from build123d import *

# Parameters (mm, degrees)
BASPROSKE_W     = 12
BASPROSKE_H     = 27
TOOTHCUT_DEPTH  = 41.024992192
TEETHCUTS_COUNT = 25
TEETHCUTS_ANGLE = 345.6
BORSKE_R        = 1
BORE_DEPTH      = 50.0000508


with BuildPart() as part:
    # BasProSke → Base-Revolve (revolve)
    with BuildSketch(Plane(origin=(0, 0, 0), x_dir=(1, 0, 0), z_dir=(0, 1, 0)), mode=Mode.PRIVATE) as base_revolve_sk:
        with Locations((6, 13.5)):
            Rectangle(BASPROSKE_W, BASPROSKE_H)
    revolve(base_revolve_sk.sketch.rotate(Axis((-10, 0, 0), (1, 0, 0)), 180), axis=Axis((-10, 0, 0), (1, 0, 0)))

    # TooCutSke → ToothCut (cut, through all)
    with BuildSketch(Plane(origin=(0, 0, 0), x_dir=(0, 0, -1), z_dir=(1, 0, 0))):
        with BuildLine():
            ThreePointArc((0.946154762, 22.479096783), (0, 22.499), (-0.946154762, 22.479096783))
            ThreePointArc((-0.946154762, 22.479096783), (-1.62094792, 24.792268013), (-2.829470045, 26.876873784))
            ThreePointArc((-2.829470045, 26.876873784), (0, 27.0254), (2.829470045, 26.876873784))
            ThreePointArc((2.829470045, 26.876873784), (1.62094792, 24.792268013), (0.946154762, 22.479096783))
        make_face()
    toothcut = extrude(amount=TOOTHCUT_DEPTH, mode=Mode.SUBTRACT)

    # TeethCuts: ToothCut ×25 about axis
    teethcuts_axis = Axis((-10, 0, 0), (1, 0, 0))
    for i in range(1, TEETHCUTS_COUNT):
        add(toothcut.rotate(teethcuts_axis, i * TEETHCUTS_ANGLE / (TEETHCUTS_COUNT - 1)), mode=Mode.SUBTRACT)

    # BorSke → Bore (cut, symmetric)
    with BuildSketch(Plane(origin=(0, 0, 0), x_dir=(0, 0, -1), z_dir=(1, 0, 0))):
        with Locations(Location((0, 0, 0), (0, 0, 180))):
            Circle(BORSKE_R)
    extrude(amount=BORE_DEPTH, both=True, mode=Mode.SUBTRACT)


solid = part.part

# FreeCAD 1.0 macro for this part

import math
import FreeCAD as App
import Part
import Sketcher

V = App.Vector
Q = App.Units.Quantity


def add_polygon(sketch, points):
    """Adds a closed chain of lines whose ends are joined by coincident constraints."""
    first, n = sketch.GeometryCount, len(points)
    for a, b in zip(points, points[1:] + points[:1]):
        sketch.addGeometry(Part.LineSegment(App.Vector(*a, 0), App.Vector(*b, 0)), False)
    for i in range(n):
        sketch.addConstraint(Sketcher.Constraint("Coincident", first + i, 2, first + (i + 1) % n, 1))

doc = App.newDocument("Part")
params = doc.addObject("Spreadsheet::Sheet", "Params")
for row, (alias, value) in enumerate([
    ("sketch1_width", "12 mm"),
    ("sketch1_height", "27 mm"),
    ("revolution_angle", "360 deg"),
    ("sketch2_radius", "10 mm"),
    ("sketch3_diameter", "2 mm"),
    ("pocket2_length", "100.000102 mm"),
], start=1):
    params.set(f"A{row}", alias)
    params.set(f"B{row}", "=" + value)
    params.setAlias(f"B{row}", alias)

body = doc.addObject("PartDesign::Body", "Body")

sketch1 = body.newObject("Sketcher::SketchObject", "Sketch")
sketch1.AttachmentSupport = (doc.getObject("XZ_Plane"), [""])
sketch1.MapMode = "FlatFace"
add_polygon(sketch1, [(0, -27), (0, 0), (12, 0), (12, -27)])
sketch1.addConstraint([
    Sketcher.Constraint("Vertical", 0),
    Sketcher.Constraint("Horizontal", 1),
    Sketcher.Constraint("Vertical", 2),
    Sketcher.Constraint("Horizontal", 3),
    Sketcher.Constraint("Coincident", 0, 2, -1, 1),
    Sketcher.Constraint("DistanceX", 1, 1, 1, 2, Q("12 mm")),
    Sketcher.Constraint("DistanceY", 0, 1, 0, 2, Q("27 mm")),
])
sketch1.setExpression("Constraints[9]", "Params.sketch1_width")
sketch1.setExpression("Constraints[10]", "Params.sketch1_height")
revolution = body.newObject("PartDesign::Revolution", "Revolution")
revolution.Profile = sketch1
revolution.ReferenceAxis = (sketch1, ["H_Axis"])
revolution.setExpression("Angle", "Params.revolution_angle")

sketch2 = body.newObject("Sketcher::SketchObject", "Sketch001")
sketch2.AttachmentSupport = (doc.getObject("YZ_Plane"), [""])
sketch2.MapMode = "FlatFace"
sketch2.addGeometry([
    Part.ArcOfCircle(Part.Circle(V(0, 0, 0), V(0, 0, 1), 22.5), math.radians(-2.41), math.radians(2.41)),
    Part.ArcOfCircle(Part.Circle(V(20.9, -10.8, 0), V(0, 0, 1), 10), math.radians(53), math.radians(81)),
    Part.ArcOfCircle(Part.Circle(V(0, 0, 0), V(0, 0, 1), 27), math.radians(-6.01), math.radians(6.01)),
    Part.ArcOfCircle(Part.Circle(V(20.9, 10.8, 0), V(0, 0, 1), 10), math.radians(-81), math.radians(-53)),
], False)
sketch2.addConstraint([
    Sketcher.Constraint("Coincident", 0, 1, 1, 2),
    Sketcher.Constraint("Coincident", 1, 1, 2, 1),
    Sketcher.Constraint("Coincident", 2, 2, 3, 2),
    Sketcher.Constraint("Coincident", 3, 1, 0, 2),
    Sketcher.Constraint("Coincident", 0, 3, -1, 1),
    Sketcher.Constraint("Coincident", 2, 3, -1, 1),
    Sketcher.Constraint("Equal", 1, 3),
    Sketcher.Constraint("Symmetric", 1, 3, 3, 3, -1),
    Sketcher.Constraint("Radius", 1, Q("10 mm")),
    Sketcher.Constraint("Radius", 0, Q("22.499 mm")),
    Sketcher.Constraint("Radius", 2, Q("27.0254 mm")),
    Sketcher.Constraint("DistanceX", -1, 1, 1, 3, Q("20.855629 mm")),
    Sketcher.Constraint("DistanceY", 1, 1, -1, 1, Q("2.82947 mm")),
])
sketch2.setExpression("Constraints[8]", "Params.sketch2_radius")
pocket1 = body.newObject("PartDesign::Pocket", "Pocket")
pocket1.Profile = sketch2
pocket1.Type = "ThroughAll"
pocket1.Reversed = True
doc.recompute()

polarpattern = body.newObject("PartDesign::PolarPattern", "PolarPattern")
polarpattern.Originals = [pocket1]
polarpattern.Axis = (doc.getObject("X_Axis"), [""])
polarpattern.Angle = 360
polarpattern.Occurrences = 25
body.Tip = polarpattern

sketch3 = body.newObject("Sketcher::SketchObject", "Sketch002")
sketch3.AttachmentSupport = (doc.getObject("YZ_Plane"), [""])
sketch3.MapMode = "FlatFace"
sketch3.addGeometry(Part.Circle(V(0, 0, 0), V(0, 0, 1), 1), False)
sketch3.addConstraint([
    Sketcher.Constraint("Coincident", 0, 3, -1, 1),
    Sketcher.Constraint("Diameter", 0, Q("2 mm")),
])
sketch3.setExpression("Constraints[1]", "Params.sketch3_diameter")
pocket2 = body.newObject("PartDesign::Pocket", "Pocket001")
pocket2.Profile = sketch3
pocket2.setExpression("Length", "Params.pocket2_length")
pocket2.Midplane = True

doc.recompute()
